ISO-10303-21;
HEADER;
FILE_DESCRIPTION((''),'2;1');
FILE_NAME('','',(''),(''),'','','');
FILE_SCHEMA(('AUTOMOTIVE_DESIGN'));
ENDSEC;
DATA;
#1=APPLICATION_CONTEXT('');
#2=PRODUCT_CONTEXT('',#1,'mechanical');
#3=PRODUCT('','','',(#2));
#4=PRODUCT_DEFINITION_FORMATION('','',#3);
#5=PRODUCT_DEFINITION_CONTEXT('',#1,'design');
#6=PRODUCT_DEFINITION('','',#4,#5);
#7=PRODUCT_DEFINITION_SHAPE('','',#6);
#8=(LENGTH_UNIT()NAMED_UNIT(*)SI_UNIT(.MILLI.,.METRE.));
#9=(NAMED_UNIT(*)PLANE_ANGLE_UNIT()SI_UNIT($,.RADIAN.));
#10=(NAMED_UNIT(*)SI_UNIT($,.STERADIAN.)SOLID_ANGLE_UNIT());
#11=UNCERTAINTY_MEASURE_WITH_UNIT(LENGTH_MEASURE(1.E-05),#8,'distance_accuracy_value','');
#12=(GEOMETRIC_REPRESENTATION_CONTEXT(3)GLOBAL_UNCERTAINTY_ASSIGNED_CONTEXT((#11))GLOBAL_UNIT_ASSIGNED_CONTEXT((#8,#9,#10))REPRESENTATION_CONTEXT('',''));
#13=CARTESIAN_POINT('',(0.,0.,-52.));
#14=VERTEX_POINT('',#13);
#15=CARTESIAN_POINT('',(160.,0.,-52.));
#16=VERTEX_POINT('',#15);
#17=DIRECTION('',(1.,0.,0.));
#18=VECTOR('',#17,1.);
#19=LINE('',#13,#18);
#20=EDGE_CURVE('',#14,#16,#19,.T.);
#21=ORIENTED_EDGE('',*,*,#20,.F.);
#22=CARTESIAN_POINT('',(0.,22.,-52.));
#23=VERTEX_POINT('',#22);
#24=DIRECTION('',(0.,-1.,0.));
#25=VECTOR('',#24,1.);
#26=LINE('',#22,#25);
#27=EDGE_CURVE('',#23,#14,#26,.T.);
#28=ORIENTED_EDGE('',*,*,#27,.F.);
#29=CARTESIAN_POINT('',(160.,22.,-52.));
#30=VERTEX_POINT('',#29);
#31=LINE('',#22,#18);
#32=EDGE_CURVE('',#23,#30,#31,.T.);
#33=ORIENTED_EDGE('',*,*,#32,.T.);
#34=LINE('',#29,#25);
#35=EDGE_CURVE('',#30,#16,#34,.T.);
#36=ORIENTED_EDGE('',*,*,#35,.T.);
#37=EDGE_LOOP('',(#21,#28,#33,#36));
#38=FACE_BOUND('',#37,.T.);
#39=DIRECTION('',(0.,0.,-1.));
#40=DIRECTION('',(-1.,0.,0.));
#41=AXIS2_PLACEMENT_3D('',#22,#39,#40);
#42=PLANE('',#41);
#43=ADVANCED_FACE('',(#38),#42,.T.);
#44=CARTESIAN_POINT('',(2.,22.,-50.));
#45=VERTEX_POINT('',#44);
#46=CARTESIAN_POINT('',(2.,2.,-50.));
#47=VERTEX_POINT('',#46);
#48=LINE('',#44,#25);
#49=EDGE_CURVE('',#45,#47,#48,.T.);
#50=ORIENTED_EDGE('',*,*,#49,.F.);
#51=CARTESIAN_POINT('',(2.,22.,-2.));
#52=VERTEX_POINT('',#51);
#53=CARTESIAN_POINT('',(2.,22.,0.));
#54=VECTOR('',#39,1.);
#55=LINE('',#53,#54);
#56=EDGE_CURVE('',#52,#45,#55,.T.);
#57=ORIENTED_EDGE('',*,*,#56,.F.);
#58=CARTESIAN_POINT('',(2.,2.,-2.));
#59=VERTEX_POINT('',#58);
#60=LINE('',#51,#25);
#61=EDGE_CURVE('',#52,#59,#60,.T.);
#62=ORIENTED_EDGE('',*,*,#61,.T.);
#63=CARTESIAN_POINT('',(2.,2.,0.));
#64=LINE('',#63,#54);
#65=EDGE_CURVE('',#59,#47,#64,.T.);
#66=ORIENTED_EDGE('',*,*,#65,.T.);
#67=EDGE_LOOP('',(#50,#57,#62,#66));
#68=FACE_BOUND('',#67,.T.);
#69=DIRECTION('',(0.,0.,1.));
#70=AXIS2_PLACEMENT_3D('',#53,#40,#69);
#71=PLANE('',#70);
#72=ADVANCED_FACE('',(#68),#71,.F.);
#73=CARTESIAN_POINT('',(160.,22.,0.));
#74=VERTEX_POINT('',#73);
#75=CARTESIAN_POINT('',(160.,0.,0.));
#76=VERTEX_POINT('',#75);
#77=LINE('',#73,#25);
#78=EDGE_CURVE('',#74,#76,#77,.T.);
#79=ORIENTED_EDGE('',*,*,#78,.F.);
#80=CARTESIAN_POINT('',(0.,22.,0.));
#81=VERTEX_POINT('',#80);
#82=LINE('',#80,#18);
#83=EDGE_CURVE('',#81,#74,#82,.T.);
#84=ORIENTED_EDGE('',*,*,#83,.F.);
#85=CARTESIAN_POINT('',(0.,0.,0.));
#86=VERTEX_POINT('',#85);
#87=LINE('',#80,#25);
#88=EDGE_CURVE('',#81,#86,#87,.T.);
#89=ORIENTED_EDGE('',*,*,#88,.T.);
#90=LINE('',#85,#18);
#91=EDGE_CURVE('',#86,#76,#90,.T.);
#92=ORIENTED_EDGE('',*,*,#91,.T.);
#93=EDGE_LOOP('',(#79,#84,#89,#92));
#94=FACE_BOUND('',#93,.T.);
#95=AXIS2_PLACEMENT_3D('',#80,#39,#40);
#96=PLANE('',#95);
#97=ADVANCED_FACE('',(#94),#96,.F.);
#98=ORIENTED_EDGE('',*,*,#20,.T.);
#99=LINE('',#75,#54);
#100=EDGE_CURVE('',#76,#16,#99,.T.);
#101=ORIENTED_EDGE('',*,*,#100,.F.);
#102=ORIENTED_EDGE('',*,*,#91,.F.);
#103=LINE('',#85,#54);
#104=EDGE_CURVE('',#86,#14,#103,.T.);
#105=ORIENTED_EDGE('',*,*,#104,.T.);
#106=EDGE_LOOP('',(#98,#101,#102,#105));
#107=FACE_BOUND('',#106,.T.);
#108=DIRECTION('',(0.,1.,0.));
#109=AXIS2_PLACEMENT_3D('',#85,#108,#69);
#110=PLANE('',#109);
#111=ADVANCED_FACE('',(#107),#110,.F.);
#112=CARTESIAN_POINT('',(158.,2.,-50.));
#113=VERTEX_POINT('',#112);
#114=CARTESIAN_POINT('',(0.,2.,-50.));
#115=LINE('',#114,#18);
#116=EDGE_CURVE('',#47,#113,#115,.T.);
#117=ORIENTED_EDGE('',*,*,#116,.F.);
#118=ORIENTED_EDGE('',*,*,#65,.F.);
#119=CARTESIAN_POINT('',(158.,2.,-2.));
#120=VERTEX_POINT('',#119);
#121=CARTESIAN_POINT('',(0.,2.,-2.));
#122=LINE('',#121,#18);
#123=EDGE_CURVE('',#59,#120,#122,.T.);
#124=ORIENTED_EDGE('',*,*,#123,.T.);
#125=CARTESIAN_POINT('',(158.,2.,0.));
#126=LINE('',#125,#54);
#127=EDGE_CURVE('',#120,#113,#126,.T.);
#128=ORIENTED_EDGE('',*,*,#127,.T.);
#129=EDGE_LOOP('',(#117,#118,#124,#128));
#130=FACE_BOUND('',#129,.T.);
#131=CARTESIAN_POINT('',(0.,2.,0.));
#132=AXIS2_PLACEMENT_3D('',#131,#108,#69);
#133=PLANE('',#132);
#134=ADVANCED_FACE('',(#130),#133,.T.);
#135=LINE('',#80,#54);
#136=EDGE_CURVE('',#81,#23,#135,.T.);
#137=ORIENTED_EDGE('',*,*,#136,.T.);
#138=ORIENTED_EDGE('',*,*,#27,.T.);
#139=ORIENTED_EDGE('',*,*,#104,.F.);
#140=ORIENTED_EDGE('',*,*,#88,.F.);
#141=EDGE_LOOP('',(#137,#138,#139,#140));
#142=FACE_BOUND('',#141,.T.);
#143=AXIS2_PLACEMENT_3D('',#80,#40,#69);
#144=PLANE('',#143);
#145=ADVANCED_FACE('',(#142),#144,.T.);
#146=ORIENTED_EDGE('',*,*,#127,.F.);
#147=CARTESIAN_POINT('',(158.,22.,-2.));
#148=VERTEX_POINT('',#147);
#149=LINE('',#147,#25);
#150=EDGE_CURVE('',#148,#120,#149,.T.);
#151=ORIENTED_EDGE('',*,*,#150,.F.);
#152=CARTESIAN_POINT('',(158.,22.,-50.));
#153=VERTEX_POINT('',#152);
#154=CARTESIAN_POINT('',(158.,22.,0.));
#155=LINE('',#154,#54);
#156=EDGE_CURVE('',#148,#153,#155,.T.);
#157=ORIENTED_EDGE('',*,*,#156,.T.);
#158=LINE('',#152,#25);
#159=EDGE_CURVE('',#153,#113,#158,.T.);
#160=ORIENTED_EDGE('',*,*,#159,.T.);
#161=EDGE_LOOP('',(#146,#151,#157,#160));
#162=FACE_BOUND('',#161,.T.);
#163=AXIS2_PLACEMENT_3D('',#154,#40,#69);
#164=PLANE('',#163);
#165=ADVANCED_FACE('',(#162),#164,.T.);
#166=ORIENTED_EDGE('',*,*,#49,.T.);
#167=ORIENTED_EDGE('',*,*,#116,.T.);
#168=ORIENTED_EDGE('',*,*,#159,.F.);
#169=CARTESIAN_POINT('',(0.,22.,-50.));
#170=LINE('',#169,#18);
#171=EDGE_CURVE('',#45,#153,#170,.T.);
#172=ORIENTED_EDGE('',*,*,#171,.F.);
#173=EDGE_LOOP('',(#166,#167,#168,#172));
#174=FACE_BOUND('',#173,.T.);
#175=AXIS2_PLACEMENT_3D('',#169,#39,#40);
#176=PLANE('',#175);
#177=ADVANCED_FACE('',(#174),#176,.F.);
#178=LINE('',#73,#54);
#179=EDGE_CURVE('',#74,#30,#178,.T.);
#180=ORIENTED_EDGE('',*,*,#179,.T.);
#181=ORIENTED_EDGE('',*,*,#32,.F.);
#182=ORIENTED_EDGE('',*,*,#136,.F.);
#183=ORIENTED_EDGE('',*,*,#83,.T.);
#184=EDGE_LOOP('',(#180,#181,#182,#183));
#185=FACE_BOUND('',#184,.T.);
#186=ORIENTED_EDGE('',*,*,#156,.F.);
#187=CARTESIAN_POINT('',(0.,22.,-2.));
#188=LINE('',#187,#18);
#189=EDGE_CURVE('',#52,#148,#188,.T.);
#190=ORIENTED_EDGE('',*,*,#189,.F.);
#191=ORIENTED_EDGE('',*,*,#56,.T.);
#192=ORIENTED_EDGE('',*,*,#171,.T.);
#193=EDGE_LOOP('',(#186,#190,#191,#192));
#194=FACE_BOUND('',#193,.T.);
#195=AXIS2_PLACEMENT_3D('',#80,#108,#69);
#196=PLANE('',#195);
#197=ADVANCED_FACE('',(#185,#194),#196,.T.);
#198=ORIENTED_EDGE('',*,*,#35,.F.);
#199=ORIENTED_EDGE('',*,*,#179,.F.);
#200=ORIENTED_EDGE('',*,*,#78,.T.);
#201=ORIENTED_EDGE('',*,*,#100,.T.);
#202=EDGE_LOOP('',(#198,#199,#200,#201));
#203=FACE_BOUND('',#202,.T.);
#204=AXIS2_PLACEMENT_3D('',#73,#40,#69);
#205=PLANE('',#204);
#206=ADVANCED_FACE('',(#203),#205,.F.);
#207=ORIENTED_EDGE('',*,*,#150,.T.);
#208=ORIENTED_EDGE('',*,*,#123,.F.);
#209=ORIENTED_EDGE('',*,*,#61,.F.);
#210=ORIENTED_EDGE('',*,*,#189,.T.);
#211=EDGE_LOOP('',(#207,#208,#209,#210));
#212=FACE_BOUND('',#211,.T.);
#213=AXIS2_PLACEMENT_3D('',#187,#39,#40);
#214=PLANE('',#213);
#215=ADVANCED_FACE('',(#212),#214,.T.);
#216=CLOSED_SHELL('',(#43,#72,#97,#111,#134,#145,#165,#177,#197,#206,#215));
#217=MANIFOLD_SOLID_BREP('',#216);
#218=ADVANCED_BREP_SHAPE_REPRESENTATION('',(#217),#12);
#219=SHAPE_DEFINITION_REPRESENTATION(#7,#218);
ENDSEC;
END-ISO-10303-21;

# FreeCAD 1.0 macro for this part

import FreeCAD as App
import Part
import Sketcher

V = App.Vector
Q = App.Units.Quantity


def faces_at(feature, points):
    """Names of the faces that lie closest to the given points."""
    faces = feature.Shape.Faces
    near = lambda p: min(range(len(faces)), key=lambda i: faces[i].distToShape(Part.Vertex(*p))[0])
    return sorted({f"Face{near(p) + 1}" for p in points})


def add_polygon(sketch, points):
    """Adds a closed chain of lines whose ends are joined by coincident constraints."""
    first, n = sketch.GeometryCount, len(points)
    for a, b in zip(points, points[1:] + points[:1]):
        sketch.addGeometry(Part.LineSegment(App.Vector(*a, 0), App.Vector(*b, 0)), False)
    for i in range(n):
        sketch.addConstraint(Sketcher.Constraint("Coincident", first + i, 2, first + (i + 1) % n, 1))

doc = App.newDocument("Part")
params = doc.addObject("Spreadsheet::Sheet", "Params")
for row, (alias, value) in enumerate([
    ("sketch1_width", "160 mm"),
    ("sketch1_height", "52 mm"),
    ("pad1_length", "22 mm"),
    ("thickness_wall", "2 mm"),
], start=1):
    params.set(f"A{row}", alias)
    params.set(f"B{row}", "=" + value)
    params.setAlias(f"B{row}", alias)

body = doc.addObject("PartDesign::Body", "Body")

# Sketch on XZ plane
sketch1 = body.newObject("Sketcher::SketchObject", "Sketch")
sketch1.AttachmentSupport = (doc.getObject("XZ_Plane"), [""])
sketch1.MapMode = "FlatFace"
add_polygon(sketch1, [(0, -52), (0, 0), (160, 0), (160, -52)])  # lines 0-3
sketch1.addConstraint([
    Sketcher.Constraint("Vertical", 0),
    Sketcher.Constraint("Horizontal", 1),
    Sketcher.Constraint("Vertical", 2),
    Sketcher.Constraint("Horizontal", 3),
    Sketcher.Constraint("Coincident", 0, 2, -1, 1),
    Sketcher.Constraint("DistanceX", 1, 1, 1, 2, Q("160 mm")),
    Sketcher.Constraint("DistanceY", 0, 1, 0, 2, Q("52 mm")),
])
sketch1.setExpression("Constraints[9]", "Params.sketch1_width")
sketch1.setExpression("Constraints[10]", "Params.sketch1_height")
pad1 = body.newObject("PartDesign::Pad", "Pad")
pad1.Profile = sketch1
pad1.setExpression("Length", "Params.pad1_length")
pad1.Reversed = True
doc.recompute()

thickness = body.newObject("PartDesign::Thickness", "Thickness")
thickness.Base = (pad1, faces_at(pad1, [(80, 22, -26)]))
thickness.setExpression("Value", "Params.thickness_wall")
thickness.Reversed = True
thickness.Join = "Intersection"

doc.recompute()
